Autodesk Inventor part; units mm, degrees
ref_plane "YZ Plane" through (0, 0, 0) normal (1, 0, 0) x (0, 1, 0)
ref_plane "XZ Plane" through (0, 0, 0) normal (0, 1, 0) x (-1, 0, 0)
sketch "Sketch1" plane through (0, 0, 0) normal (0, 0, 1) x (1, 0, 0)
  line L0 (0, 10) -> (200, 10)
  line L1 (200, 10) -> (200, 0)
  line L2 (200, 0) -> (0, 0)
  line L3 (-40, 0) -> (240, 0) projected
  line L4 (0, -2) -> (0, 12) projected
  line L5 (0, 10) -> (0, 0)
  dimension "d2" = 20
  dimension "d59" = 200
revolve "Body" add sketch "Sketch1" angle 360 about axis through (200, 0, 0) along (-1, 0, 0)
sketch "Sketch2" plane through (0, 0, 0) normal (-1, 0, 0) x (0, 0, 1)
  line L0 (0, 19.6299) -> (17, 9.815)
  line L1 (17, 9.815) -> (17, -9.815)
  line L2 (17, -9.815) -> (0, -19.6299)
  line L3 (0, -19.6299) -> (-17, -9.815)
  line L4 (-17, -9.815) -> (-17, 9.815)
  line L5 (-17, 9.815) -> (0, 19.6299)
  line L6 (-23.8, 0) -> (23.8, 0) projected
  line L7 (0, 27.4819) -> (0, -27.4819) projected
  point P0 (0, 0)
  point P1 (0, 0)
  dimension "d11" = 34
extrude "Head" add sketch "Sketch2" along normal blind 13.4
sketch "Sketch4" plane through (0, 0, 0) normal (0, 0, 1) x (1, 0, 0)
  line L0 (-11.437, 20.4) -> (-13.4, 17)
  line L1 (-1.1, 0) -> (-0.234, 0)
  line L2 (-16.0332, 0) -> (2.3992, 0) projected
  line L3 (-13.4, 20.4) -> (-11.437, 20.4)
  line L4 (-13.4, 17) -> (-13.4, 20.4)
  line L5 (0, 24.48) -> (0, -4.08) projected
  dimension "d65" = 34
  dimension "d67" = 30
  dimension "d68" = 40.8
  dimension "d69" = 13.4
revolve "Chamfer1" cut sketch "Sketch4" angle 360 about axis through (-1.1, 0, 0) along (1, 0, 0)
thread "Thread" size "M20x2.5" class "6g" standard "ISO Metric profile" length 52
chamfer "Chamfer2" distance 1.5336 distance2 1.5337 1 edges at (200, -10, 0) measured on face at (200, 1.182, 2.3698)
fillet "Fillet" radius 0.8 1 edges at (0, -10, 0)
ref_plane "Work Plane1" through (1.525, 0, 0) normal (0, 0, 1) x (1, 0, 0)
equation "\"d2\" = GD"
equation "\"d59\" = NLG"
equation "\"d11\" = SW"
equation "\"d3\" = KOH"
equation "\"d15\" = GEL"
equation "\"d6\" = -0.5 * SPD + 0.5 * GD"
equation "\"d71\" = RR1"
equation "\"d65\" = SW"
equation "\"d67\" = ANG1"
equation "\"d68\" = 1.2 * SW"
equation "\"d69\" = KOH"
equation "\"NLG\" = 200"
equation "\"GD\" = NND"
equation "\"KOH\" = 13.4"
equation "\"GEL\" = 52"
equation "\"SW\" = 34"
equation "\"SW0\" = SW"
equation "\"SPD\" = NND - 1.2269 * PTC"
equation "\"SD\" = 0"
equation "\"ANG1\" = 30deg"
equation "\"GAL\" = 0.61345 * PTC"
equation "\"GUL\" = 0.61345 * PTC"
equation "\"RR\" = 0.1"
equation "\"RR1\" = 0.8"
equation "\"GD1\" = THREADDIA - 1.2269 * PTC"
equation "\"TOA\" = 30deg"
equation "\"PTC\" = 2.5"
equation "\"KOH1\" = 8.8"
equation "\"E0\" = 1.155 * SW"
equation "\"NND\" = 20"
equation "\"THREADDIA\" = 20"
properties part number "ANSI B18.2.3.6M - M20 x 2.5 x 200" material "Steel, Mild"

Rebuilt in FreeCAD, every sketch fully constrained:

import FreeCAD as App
import Part
import Sketcher
Q = App.Units.Quantity


def edges_at(feature, points):
    """Names of the edges that pass closest to the given points."""
    edges = feature.Shape.Edges
    near = lambda p: min(range(len(edges)), key=lambda i: edges[i].distToShape(Part.Vertex(*p))[0])
    return sorted({f"Edge{near(p) + 1}" for p in points})


def add_polygon(sketch, points):
    """Adds a closed chain of lines whose ends are joined by coincident constraints."""
    first, n = sketch.GeometryCount, len(points)
    for a, b in zip(points, points[1:] + points[:1]):
        sketch.addGeometry(Part.LineSegment(App.Vector(*a, 0), App.Vector(*b, 0)), False)
    for i in range(n):
        sketch.addConstraint(Sketcher.Constraint("Coincident", first + i, 2, first + (i + 1) % n, 1))

doc = App.newDocument("Part")
body = doc.addObject("PartDesign::Body", "Body")

# Sketch on XY plane
sketch1 = doc.addObject("Sketcher::SketchObject", "Sketch")
body.addObject(sketch1)
sketch1.AttachmentSupport = (doc.XY_Plane, [""])
sketch1.MapMode = "FlatFace"
add_polygon(sketch1, [(200, 10), (0, 10), (0, 0), (200, 0)])  # lines 0-3
sketch1.addConstraint(Sketcher.Constraint("Horizontal", 0))
sketch1.addConstraint(Sketcher.Constraint("Vertical", 1))
sketch1.addConstraint(Sketcher.Constraint("Horizontal", 2))
sketch1.addConstraint(Sketcher.Constraint("Vertical", 3))
sketch1.addConstraint(Sketcher.Constraint("Coincident", 1, 2, -1, 1))
sketch1.addConstraint(Sketcher.Constraint("DistanceX", 0, 2, 0, 1, Q("200 mm")))
sketch1.addConstraint(Sketcher.Constraint("DistanceY", 1, 2, 1, 1, Q("10 mm")))
revolution = doc.addObject("PartDesign::Revolution", "Revolution")
body.addObject(revolution)
revolution.Profile = sketch1
revolution.ReferenceAxis = (sketch1, ["H_Axis"])
revolution.Angle = 360

# Sketch on YZ plane
sketch2 = doc.addObject("Sketcher::SketchObject", "Sketch001")
body.addObject(sketch2)
sketch2.AttachmentSupport = (doc.YZ_Plane, [""])
sketch2.MapMode = "FlatFace"
add_polygon(sketch2, [(10, -17), (-10, -17), (-20, 0), (-10, 17), (10, 17), (20, 0)])  # lines 0-5
sketch2.addConstraint(Sketcher.Constraint("Horizontal", 0))
sketch2.addConstraint(Sketcher.Constraint("Horizontal", 3))
sketch2.addConstraint(Sketcher.Constraint("Symmetric", 0, 2, 3, 2, -1, 1))
sketch2.addConstraint(Sketcher.Constraint("Symmetric", 1, 2, 4, 2, -1, 1))
sketch2.addConstraint(Sketcher.Constraint("PointOnObject", 1, 2, -1))
sketch2.addConstraint(Sketcher.Constraint("Parallel", 2, 5))
sketch2.addConstraint(Sketcher.Constraint("Vertical", 0, 2, 2, 2))
sketch2.addConstraint(Sketcher.Constraint("DistanceY", 0, 2, 2, 2, Q("34 mm")))
sketch2.addConstraint(Sketcher.Constraint("Angle", 1, Q("119.9999 deg")))
sketch2.addConstraint(Sketcher.Constraint("DistanceX", 0, 2, 0, 1, Q("19.63 mm")))
pad1 = doc.addObject("PartDesign::Pad", "Pad")
body.addObject(pad1)
pad1.Profile = sketch2
pad1.Length = 13.4
pad1.Reversed = True

# Sketch on XY plane
sketch3 = doc.addObject("Sketcher::SketchObject", "Sketch002")
body.addObject(sketch3)
sketch3.AttachmentSupport = (doc.XY_Plane, [""])
sketch3.MapMode = "FlatFace"
add_polygon(sketch3, [(-13.4, 17), (-11.4, 20.4), (-13.4, 20.4)])  # lines 0-2
sketch3.addConstraint(Sketcher.Constraint("Horizontal", 1))
sketch3.addConstraint(Sketcher.Constraint("Vertical", 2))
sketch3.addConstraint(Sketcher.Constraint("DistanceX", 1, 2, -1, 1, Q("13.4 mm")))
sketch3.addConstraint(Sketcher.Constraint("Angle", 0, Q("60 deg")))
sketch3.addConstraint(Sketcher.Constraint("DistanceY", 2, 2, 2, 1, Q("3.4 mm")))
sketch3.addConstraint(Sketcher.Constraint("DistanceY", -1, 1, 2, 2, Q("17 mm")))
groove = doc.addObject("PartDesign::Groove", "Groove")
body.addObject(groove)
groove.Profile = sketch3
groove.ReferenceAxis = (sketch3, ["H_Axis"])
groove.Angle = 360
doc.recompute()

chamfer = doc.addObject("PartDesign::Chamfer", "Chamfer")
body.addObject(chamfer)
chamfer.Base = (groove, edges_at(groove, [(200, -10, 0)]))
chamfer.ChamferType = "Two distances"
chamfer.Size = 1.5336
chamfer.Size2 = 1.5337
doc.recompute()

fillet = doc.addObject("PartDesign::Fillet", "Fillet")
body.addObject(fillet)
fillet.Base = (chamfer, edges_at(chamfer, [(0, -10, 0)]))
fillet.Radius = 0.8

doc.recompute()
